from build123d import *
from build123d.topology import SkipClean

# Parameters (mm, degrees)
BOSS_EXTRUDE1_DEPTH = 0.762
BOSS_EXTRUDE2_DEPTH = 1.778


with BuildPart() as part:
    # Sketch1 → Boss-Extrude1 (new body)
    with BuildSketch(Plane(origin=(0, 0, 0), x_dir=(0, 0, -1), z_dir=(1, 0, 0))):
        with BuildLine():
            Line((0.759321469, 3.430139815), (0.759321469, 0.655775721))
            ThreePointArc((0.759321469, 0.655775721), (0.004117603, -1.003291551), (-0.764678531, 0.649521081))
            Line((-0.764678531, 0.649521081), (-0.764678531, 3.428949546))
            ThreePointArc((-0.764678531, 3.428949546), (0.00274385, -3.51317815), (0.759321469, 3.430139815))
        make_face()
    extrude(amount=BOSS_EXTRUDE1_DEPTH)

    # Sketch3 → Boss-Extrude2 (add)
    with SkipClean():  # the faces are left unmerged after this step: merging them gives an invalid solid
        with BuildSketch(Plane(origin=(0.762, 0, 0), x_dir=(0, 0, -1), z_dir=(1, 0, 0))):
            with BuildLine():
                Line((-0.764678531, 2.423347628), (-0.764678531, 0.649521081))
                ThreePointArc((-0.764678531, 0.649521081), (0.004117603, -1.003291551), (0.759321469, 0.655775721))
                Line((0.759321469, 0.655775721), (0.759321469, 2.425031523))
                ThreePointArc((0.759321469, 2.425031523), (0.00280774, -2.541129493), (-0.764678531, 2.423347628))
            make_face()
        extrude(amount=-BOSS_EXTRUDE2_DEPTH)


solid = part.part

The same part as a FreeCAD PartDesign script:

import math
import FreeCAD as App
import Part
import Sketcher

V = App.Vector
Q = App.Units.Quantity

doc = App.newDocument("Part")
body = doc.addObject("PartDesign::Body", "Body")

sketch1 = body.newObject("Sketcher::SketchObject", "Sketch")
sketch1.AttachmentSupport = (doc.getObject("YZ_Plane"), [""])
sketch1.MapMode = "FlatFace"
sketch1.addGeometry([
    Part.LineSegment(V(3.4, -0.8, 0), V(0.7, -0.8, 0)),
    Part.ArcOfCircle(Part.Circle(V(0, 0, 0), V(0, 0, 1), 1), math.radians(50), math.radians(311)),
    Part.LineSegment(V(0.6, 0.8, 0), V(3.4, 0.8, 0)),
    Part.ArcOfCircle(Part.Circle(V(0, 0, 0), V(0, 0, 1), 3.5), math.radians(13), math.radians(348)),
], False)
sketch1.addConstraint([
    Sketcher.Constraint("Coincident", 0, 2, 1, 2),
    Sketcher.Constraint("Coincident", 1, 1, 2, 1),
    Sketcher.Constraint("Coincident", 2, 2, 3, 1),
    Sketcher.Constraint("Coincident", 3, 2, 0, 1),
    Sketcher.Constraint("Horizontal", 0),
    Sketcher.Constraint("Horizontal", 2),
    Sketcher.Constraint("Coincident", 1, 3, -1, 1),
    Sketcher.Constraint("Coincident", 3, 3, -1, 1),
    Sketcher.Constraint("Radius", 1, Q("0.0395 in")),
    Sketcher.Constraint("DistanceY", 0, 2, 1, 1, Q("0.06 in")),
    Sketcher.Constraint("Radius", 3, Q("3.513179 mm")),
    Sketcher.Constraint("DistanceX", 2, 1, 2, 2, Q("2.779428 mm")),
])
pad1 = body.newObject("PartDesign::Pad", "Pad")
pad1.Profile = sketch1
pad1.Length = Q("0.03 in")

sketch2 = body.newObject("Sketcher::SketchObject", "Sketch001")
sketch2.AttachmentSupport = (doc.getObject("YZ_Plane"), [""])
sketch2.MapMode = "FlatFace"
sketch2.AttachmentOffset = App.Placement(V(0, 0, 0.03 * 25.4), App.Rotation())
sketch2.addGeometry([
    Part.LineSegment(V(0.6, 0.8, 0), V(2.4, 0.8, 0)),
    Part.ArcOfCircle(Part.Circle(V(0, 0, 0), V(0, 0, 1), 2.5), math.radians(18), math.radians(343)),
    Part.LineSegment(V(2.4, -0.8, 0), V(0.7, -0.8, 0)),
    Part.ArcOfCircle(Part.Circle(V(0, 0, 0), V(0, 0, 1), 1), math.radians(50), math.radians(311)),
], False)
sketch2.addConstraint([
    Sketcher.Constraint("Coincident", 0, 2, 1, 1),
    Sketcher.Constraint("Coincident", 1, 2, 2, 1),
    Sketcher.Constraint("Coincident", 2, 2, 3, 2),
    Sketcher.Constraint("Coincident", 3, 1, 0, 1),
    Sketcher.Constraint("Horizontal", 0),
    Sketcher.Constraint("Horizontal", 2),
    Sketcher.Constraint("Coincident", 1, 3, -1, 1),
    Sketcher.Constraint("Coincident", 3, 3, -1, 1),
    Sketcher.Constraint("Radius", 3, Q("0.0395 in")),
    Sketcher.Constraint("DistanceY", 1, 2, 0, 2, Q("0.06 in")),
    Sketcher.Constraint("Radius", 1, Q("2.541131 mm")),
    Sketcher.Constraint("DistanceX", 0, 1, 0, 2, Q("1.773827 mm")),
])
pad2 = body.newObject("PartDesign::Pad", "Pad001")
pad2.Profile = sketch2
pad2.Length = Q("0.07 in")
pad2.Reversed = True

doc.recompute()
